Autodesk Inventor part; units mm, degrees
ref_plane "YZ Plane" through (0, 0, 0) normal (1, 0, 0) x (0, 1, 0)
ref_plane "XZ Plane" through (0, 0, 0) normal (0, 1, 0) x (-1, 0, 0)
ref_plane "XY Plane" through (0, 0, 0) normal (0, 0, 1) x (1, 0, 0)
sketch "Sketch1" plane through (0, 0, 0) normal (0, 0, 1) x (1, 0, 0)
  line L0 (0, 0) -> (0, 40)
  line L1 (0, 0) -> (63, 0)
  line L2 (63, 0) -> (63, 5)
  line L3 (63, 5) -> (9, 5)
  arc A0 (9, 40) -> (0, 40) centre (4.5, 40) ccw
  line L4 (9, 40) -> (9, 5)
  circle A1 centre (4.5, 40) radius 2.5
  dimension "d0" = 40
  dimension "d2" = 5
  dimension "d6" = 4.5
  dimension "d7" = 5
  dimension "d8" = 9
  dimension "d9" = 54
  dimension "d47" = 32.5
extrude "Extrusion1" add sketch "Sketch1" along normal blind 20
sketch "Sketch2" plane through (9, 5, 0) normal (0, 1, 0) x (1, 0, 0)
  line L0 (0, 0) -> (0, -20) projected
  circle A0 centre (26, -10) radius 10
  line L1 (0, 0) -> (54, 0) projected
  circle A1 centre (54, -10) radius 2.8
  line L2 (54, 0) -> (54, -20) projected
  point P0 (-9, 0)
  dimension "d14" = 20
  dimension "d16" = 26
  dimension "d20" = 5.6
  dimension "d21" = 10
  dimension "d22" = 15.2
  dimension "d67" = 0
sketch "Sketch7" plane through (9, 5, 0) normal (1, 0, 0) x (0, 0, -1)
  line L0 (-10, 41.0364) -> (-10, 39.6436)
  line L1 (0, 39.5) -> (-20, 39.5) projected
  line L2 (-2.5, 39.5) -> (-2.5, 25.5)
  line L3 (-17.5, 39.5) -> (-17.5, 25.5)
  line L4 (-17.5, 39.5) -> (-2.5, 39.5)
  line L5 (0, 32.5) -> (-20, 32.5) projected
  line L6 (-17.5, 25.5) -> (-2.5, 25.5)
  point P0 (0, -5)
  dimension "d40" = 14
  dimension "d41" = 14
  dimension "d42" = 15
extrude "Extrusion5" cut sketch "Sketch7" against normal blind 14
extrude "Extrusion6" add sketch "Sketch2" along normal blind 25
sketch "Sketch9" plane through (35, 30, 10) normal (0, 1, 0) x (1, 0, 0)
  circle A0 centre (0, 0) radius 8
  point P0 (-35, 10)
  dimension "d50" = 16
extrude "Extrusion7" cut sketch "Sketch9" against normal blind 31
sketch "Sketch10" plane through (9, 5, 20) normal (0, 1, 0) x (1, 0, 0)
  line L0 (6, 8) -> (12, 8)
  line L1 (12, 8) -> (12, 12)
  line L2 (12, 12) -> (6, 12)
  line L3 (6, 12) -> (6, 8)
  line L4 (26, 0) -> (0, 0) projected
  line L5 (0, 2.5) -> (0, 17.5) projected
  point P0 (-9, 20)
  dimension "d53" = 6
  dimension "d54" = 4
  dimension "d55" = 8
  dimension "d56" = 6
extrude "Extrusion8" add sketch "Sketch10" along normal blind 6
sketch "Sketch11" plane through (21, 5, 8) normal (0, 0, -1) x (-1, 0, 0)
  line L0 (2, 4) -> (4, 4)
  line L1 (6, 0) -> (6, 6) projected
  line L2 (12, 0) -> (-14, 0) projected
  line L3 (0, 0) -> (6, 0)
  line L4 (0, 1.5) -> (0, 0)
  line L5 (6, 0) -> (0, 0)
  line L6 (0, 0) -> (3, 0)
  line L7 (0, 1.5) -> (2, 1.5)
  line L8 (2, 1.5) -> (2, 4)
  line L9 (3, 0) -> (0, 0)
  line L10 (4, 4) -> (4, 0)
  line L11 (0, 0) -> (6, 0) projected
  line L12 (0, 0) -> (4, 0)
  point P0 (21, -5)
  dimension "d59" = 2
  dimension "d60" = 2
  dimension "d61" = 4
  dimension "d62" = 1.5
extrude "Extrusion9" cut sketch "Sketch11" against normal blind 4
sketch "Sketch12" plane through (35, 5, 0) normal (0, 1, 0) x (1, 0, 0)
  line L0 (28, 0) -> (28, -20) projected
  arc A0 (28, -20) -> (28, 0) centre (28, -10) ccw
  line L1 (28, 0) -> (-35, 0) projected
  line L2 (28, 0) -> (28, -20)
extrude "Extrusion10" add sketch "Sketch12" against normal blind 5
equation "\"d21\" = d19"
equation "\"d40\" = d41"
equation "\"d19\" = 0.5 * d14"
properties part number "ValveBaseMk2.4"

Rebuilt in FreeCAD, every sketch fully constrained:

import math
import FreeCAD as App
import Part
import Sketcher
Q = App.Units.Quantity

doc = App.newDocument("Part")
params = doc.addObject("Spreadsheet::Sheet", "Params")
for row, (alias, value) in enumerate([
    ("sketch1_diameter", "5 mm"),
    ("sketch1_radius", "4.5 mm"),
    ("sketch1_width", "54 mm"),
    ("sketch1_height", "40 mm"),
    ("sketch1_height2", "5 mm"),
    ("pad1_length", "20 mm"),
    ("sketch2_width", "14 mm"),
    ("sketch2_height", "15 mm"),
    ("pocket1_length", "14 mm"),
    ("sketch3_diameter", "20 mm"),
    ("sketch3_diameter2", "5.6 mm"),
    ("pad2_length", "25 mm"),
    ("sketch4_diameter", "16 mm"),
    ("pocket2_length", "31 mm"),
    ("sketch5_width", "6 mm"),
    ("sketch5_height", "4 mm"),
    ("pad3_length", "6 mm"),
    ("sketch6_width", "2 mm"),
    ("sketch6_height", "1.5 mm"),
    ("pocket3_length", "4 mm"),
    ("sketch7_radius", "10 mm"),
    ("pad4_length", "5 mm"),
], start=1):
    params.set(f"A{row}", alias)
    params.set(f"B{row}", "=" + value)
    params.setAlias(f"B{row}", alias)

body = doc.addObject("PartDesign::Body", "Body")

sketch1 = body.newObject("Sketcher::SketchObject", "Sketch")
sketch1.AttachmentSupport = (doc.getObject("XY_Plane"), [""])
sketch1.MapMode = "FlatFace"
sketch1.addGeometry(Part.LineSegment(App.Vector(0, 40, 0), App.Vector(0, 0, 0)), False)
sketch1.addGeometry(Part.LineSegment(App.Vector(0, 0, 0), App.Vector(63, 0, 0)), False)
sketch1.addGeometry(Part.LineSegment(App.Vector(63, 0, 0), App.Vector(63, 5, 0)), False)
sketch1.addGeometry(Part.LineSegment(App.Vector(63, 5, 0), App.Vector(9, 5, 0)), False)
sketch1.addGeometry(Part.LineSegment(App.Vector(9, 5, 0), App.Vector(9, 40, 0)), False)
sketch1.addGeometry(Part.ArcOfCircle(Part.Circle(App.Vector(4.5, 40, 0), App.Vector(0, 0, 1), 4.5), math.radians(0), math.radians(180)), False)
sketch1.addGeometry(Part.Circle(App.Vector(4.5, 40, 0), App.Vector(0, 0, 1), 2.5), False)
sketch1.addConstraint(Sketcher.Constraint("Coincident", 0, 2, 1, 1))
sketch1.addConstraint(Sketcher.Constraint("Coincident", 1, 2, 2, 1))
sketch1.addConstraint(Sketcher.Constraint("Coincident", 2, 2, 3, 1))
sketch1.addConstraint(Sketcher.Constraint("Coincident", 3, 2, 4, 1))
sketch1.addConstraint(Sketcher.Constraint("Tangent", 4, 2, 5, 1))
sketch1.addConstraint(Sketcher.Constraint("Tangent", 5, 2, 0, 1))
sketch1.addConstraint(Sketcher.Constraint("Vertical", 0))
sketch1.addConstraint(Sketcher.Constraint("Horizontal", 1))
sketch1.addConstraint(Sketcher.Constraint("Vertical", 2))
sketch1.addConstraint(Sketcher.Constraint("Horizontal", 3))
sketch1.addConstraint(Sketcher.Constraint("Vertical", 4))
sketch1.addConstraint(Sketcher.Constraint("Coincident", 0, 2, -1, 1))
sketch1.addConstraint(Sketcher.Constraint("Coincident", 6, 3, 5, 3))
sketch1.addConstraint(Sketcher.Constraint("Diameter", 6, Q("5 mm")))
sketch1.addConstraint(Sketcher.Constraint("Radius", 5, Q("4.5 mm")))
sketch1.addConstraint(Sketcher.Constraint("DistanceX", 3, 2, 3, 1, Q("54 mm")))
sketch1.addConstraint(Sketcher.Constraint("DistanceY", 0, 2, 0, 1, Q("40 mm")))
sketch1.addConstraint(Sketcher.Constraint("DistanceY", 2, 1, 2, 2, Q("5 mm")))
sketch1.setExpression("Constraints[13]", "Params.sketch1_diameter")
sketch1.setExpression("Constraints[14]", "Params.sketch1_radius")
sketch1.setExpression("Constraints[15]", "Params.sketch1_width")
sketch1.setExpression("Constraints[16]", "Params.sketch1_height")
sketch1.setExpression("Constraints[17]", "Params.sketch1_height2")
pad1 = body.newObject("PartDesign::Pad", "Pad")
pad1.Profile = sketch1
pad1.setExpression("Length", "Params.pad1_length")

sketch2 = body.newObject("Sketcher::SketchObject", "Sketch001")
sketch2.AttachmentSupport = (doc.getObject("YZ_Plane"), [""])
sketch2.MapMode = "FlatFace"
sketch2.AttachmentOffset = App.Placement(App.Vector(0, 0, 9), App.Rotation())
sketch2.addGeometry(Part.LineSegment(App.Vector(44, 2, 0), App.Vector(44, 18, 0)), False)
sketch2.addGeometry(Part.LineSegment(App.Vector(44, 18, 0), App.Vector(30, 18, 0)), False)
sketch2.addGeometry(Part.LineSegment(App.Vector(30, 18, 0), App.Vector(30, 2, 0)), False)
sketch2.addGeometry(Part.LineSegment(App.Vector(30, 2, 0), App.Vector(44, 2, 0)), False)
sketch2.addConstraint(Sketcher.Constraint("Coincident", 0, 2, 1, 1))
sketch2.addConstraint(Sketcher.Constraint("Coincident", 1, 2, 2, 1))
sketch2.addConstraint(Sketcher.Constraint("Coincident", 2, 2, 3, 1))
sketch2.addConstraint(Sketcher.Constraint("Coincident", 3, 2, 0, 1))
sketch2.addConstraint(Sketcher.Constraint("Vertical", 0))
sketch2.addConstraint(Sketcher.Constraint("Horizontal", 1))
sketch2.addConstraint(Sketcher.Constraint("Vertical", 2))
sketch2.addConstraint(Sketcher.Constraint("Horizontal", 3))
sketch2.addConstraint(Sketcher.Constraint("DistanceX", 1, 2, 1, 1, Q("14 mm")))
sketch2.addConstraint(Sketcher.Constraint("DistanceY", 0, 1, 0, 2, Q("15 mm")))
sketch2.addConstraint(Sketcher.Constraint("DistanceX", -1, 1, 0, 2, Q("44.5 mm")))
sketch2.addConstraint(Sketcher.Constraint("DistanceY", -1, 1, 0, 2, Q("17.5 mm")))
sketch2.setExpression("Constraints[8]", "Params.sketch2_width")
sketch2.setExpression("Constraints[9]", "Params.sketch2_height")
pocket1 = body.newObject("PartDesign::Pocket", "Pocket")
pocket1.Profile = sketch2
pocket1.setExpression("Length", "Params.pocket1_length")

sketch3 = body.newObject("Sketcher::SketchObject", "Sketch002")
sketch3.AttachmentSupport = (doc.getObject("XZ_Plane"), [""])
sketch3.MapMode = "FlatFace"
sketch3.AttachmentOffset = App.Placement(App.Vector(0, 0, -5), App.Rotation())
sketch3.addGeometry(Part.Circle(App.Vector(35, 10, 0), App.Vector(0, 0, 1), 10), False)
sketch3.addGeometry(Part.Circle(App.Vector(63, 10, 0), App.Vector(0, 0, 1), 2.8), False)
sketch3.addConstraint(Sketcher.Constraint("Horizontal", 0, 3, 1, 3))
sketch3.addConstraint(Sketcher.Constraint("Diameter", 0, Q("20 mm")))
sketch3.addConstraint(Sketcher.Constraint("Diameter", 1, Q("5.6 mm")))
sketch3.addConstraint(Sketcher.Constraint("DistanceY", -1, 1, 0, 3, Q("10 mm")))
sketch3.addConstraint(Sketcher.Constraint("DistanceX", -1, 1, 0, 3, Q("35 mm")))
sketch3.addConstraint(Sketcher.Constraint("DistanceX", -1, 1, 1, 3, Q("63 mm")))
sketch3.setExpression("Constraints[1]", "Params.sketch3_diameter")
sketch3.setExpression("Constraints[2]", "Params.sketch3_diameter2")
pad2 = body.newObject("PartDesign::Pad", "Pad001")
pad2.Profile = sketch3
pad2.setExpression("Length", "Params.pad2_length")
pad2.Reversed = True

sketch4 = body.newObject("Sketcher::SketchObject", "Sketch003")
sketch4.AttachmentSupport = (doc.getObject("XZ_Plane"), [""])
sketch4.MapMode = "FlatFace"
sketch4.AttachmentOffset = App.Placement(App.Vector(0, 0, -30), App.Rotation())
sketch4.addGeometry(Part.Circle(App.Vector(35, 10, 0), App.Vector(0, 0, 1), 8), False)
sketch4.addConstraint(Sketcher.Constraint("Diameter", 0, Q("16 mm")))
sketch4.addConstraint(Sketcher.Constraint("DistanceX", -1, 1, 0, 3, Q("35 mm")))
sketch4.addConstraint(Sketcher.Constraint("DistanceY", -1, 1, 0, 3, Q("10 mm")))
sketch4.setExpression("Constraints[0]", "Params.sketch4_diameter")
pocket2 = body.newObject("PartDesign::Pocket", "Pocket001")
pocket2.Profile = sketch4
pocket2.setExpression("Length", "Params.pocket2_length")
pocket2.Reversed = True

sketch5 = body.newObject("Sketcher::SketchObject", "Sketch004")
sketch5.AttachmentSupport = (doc.getObject("XZ_Plane"), [""])
sketch5.MapMode = "FlatFace"
sketch5.AttachmentOffset = App.Placement(App.Vector(0, 0, -5), App.Rotation())
sketch5.addGeometry(Part.LineSegment(App.Vector(15, 8, 0), App.Vector(15, 12, 0)), False)
sketch5.addGeometry(Part.LineSegment(App.Vector(15, 12, 0), App.Vector(21, 12, 0)), False)
sketch5.addGeometry(Part.LineSegment(App.Vector(21, 12, 0), App.Vector(21, 8, 0)), False)
sketch5.addGeometry(Part.LineSegment(App.Vector(21, 8, 0), App.Vector(15, 8, 0)), False)
sketch5.addConstraint(Sketcher.Constraint("Coincident", 0, 2, 1, 1))
sketch5.addConstraint(Sketcher.Constraint("Coincident", 1, 2, 2, 1))
sketch5.addConstraint(Sketcher.Constraint("Coincident", 2, 2, 3, 1))
sketch5.addConstraint(Sketcher.Constraint("Coincident", 3, 2, 0, 1))
sketch5.addConstraint(Sketcher.Constraint("Vertical", 0))
sketch5.addConstraint(Sketcher.Constraint("Horizontal", 1))
sketch5.addConstraint(Sketcher.Constraint("Vertical", 2))
sketch5.addConstraint(Sketcher.Constraint("Horizontal", 3))
sketch5.addConstraint(Sketcher.Constraint("DistanceX", 1, 1, 1, 2, Q("6 mm")))
sketch5.addConstraint(Sketcher.Constraint("DistanceY", 0, 1, 0, 2, Q("4 mm")))
sketch5.addConstraint(Sketcher.Constraint("DistanceY", -1, 1, 2, 2, Q("8 mm")))
sketch5.addConstraint(Sketcher.Constraint("DistanceX", -1, 1, 0, 2, Q("15 mm")))
sketch5.setExpression("Constraints[8]", "Params.sketch5_width")
sketch5.setExpression("Constraints[9]", "Params.sketch5_height")
pad3 = body.newObject("PartDesign::Pad", "Pad002")
pad3.Profile = sketch5
pad3.setExpression("Length", "Params.pad3_length")
pad3.Reversed = True

sketch6 = body.newObject("Sketcher::SketchObject", "Sketch005")
sketch6.AttachmentSupport = (doc.getObject("XY_Plane"), [""])
sketch6.MapMode = "FlatFace"
sketch6.AttachmentOffset = App.Placement(App.Vector(0, 0, 8), App.Rotation())
sketch6.addGeometry(Part.LineSegment(App.Vector(17, 9, 0), App.Vector(19, 9, 0)), False)
sketch6.addGeometry(Part.LineSegment(App.Vector(19, 9, 0), App.Vector(19, 6.5, 0)), False)
sketch6.addGeometry(Part.LineSegment(App.Vector(19, 6.5, 0), App.Vector(21, 6.5, 0)), False)
sketch6.addGeometry(Part.LineSegment(App.Vector(21, 6.5, 0), App.Vector(21, 5, 0)), False)
sketch6.addGeometry(Part.LineSegment(App.Vector(21, 5, 0), App.Vector(17, 5, 0)), False)
sketch6.addGeometry(Part.LineSegment(App.Vector(17, 5, 0), App.Vector(17, 9, 0)), False)
sketch6.addConstraint(Sketcher.Constraint("Coincident", 0, 2, 1, 1))
sketch6.addConstraint(Sketcher.Constraint("Coincident", 1, 2, 2, 1))
sketch6.addConstraint(Sketcher.Constraint("Coincident", 2, 2, 3, 1))
sketch6.addConstraint(Sketcher.Constraint("Coincident", 3, 2, 4, 1))
sketch6.addConstraint(Sketcher.Constraint("Coincident", 4, 2, 5, 1))
sketch6.addConstraint(Sketcher.Constraint("Coincident", 5, 2, 0, 1))
sketch6.addConstraint(Sketcher.Constraint("Horizontal", 0))
sketch6.addConstraint(Sketcher.Constraint("Vertical", 1))
sketch6.addConstraint(Sketcher.Constraint("Horizontal", 2))
sketch6.addConstraint(Sketcher.Constraint("Vertical", 3))
sketch6.addConstraint(Sketcher.Constraint("Horizontal", 4))
sketch6.addConstraint(Sketcher.Constraint("Vertical", 5))
sketch6.addConstraint(Sketcher.Constraint("Equal", 0, 2))
sketch6.addConstraint(Sketcher.Constraint("Equal", 4, 5))
sketch6.addConstraint(Sketcher.Constraint("DistanceX", 0, 1, 0, 2, Q("2 mm")))
sketch6.addConstraint(Sketcher.Constraint("DistanceY", 3, 2, 3, 1, Q("1.5 mm")))
sketch6.addConstraint(Sketcher.Constraint("DistanceX", -1, 1, 0, 2, Q("19 mm")))
sketch6.addConstraint(Sketcher.Constraint("DistanceY", -1, 1, 0, 2, Q("9 mm")))
sketch6.setExpression("Constraints[14]", "Params.sketch6_width")
sketch6.setExpression("Constraints[15]", "Params.sketch6_height")
pocket3 = body.newObject("PartDesign::Pocket", "Pocket002")
pocket3.Profile = sketch6
pocket3.setExpression("Length", "Params.pocket3_length")
pocket3.Reversed = True

sketch7 = body.newObject("Sketcher::SketchObject", "Sketch006")
sketch7.AttachmentSupport = (doc.getObject("XZ_Plane"), [""])
sketch7.MapMode = "FlatFace"
sketch7.AttachmentOffset = App.Placement(App.Vector(0, 0, -5), App.Rotation())
sketch7.addGeometry(Part.ArcOfCircle(Part.Circle(App.Vector(63, 10, 0), App.Vector(0, 0, 1), 10), math.radians(-90), math.radians(90)), False)
sketch7.addGeometry(Part.LineSegment(App.Vector(63, 0, 0), App.Vector(63, 20, 0)), False)
sketch7.addConstraint(Sketcher.Constraint("Coincident", 0, 1, 1, 1))
sketch7.addConstraint(Sketcher.Constraint("Coincident", 1, 2, 0, 2))
sketch7.addConstraint(Sketcher.Constraint("Vertical", 1))
sketch7.addConstraint(Sketcher.Constraint("PointOnObject", 0, 1, -1))
sketch7.addConstraint(Sketcher.Constraint("Radius", 0, Q("10 mm")))
sketch7.addConstraint(Sketcher.Constraint("DistanceX", -1, 1, 0, 3, Q("63 mm")))
sketch7.addConstraint(Sketcher.Constraint("DistanceX", -1, 1, 0, 1, Q("63 mm")))
sketch7.setExpression("Constraints[4]", "Params.sketch7_radius")
pad4 = body.newObject("PartDesign::Pad", "Pad003")
pad4.Profile = sketch7
pad4.setExpression("Length", "Params.pad4_length")

doc.recompute()
